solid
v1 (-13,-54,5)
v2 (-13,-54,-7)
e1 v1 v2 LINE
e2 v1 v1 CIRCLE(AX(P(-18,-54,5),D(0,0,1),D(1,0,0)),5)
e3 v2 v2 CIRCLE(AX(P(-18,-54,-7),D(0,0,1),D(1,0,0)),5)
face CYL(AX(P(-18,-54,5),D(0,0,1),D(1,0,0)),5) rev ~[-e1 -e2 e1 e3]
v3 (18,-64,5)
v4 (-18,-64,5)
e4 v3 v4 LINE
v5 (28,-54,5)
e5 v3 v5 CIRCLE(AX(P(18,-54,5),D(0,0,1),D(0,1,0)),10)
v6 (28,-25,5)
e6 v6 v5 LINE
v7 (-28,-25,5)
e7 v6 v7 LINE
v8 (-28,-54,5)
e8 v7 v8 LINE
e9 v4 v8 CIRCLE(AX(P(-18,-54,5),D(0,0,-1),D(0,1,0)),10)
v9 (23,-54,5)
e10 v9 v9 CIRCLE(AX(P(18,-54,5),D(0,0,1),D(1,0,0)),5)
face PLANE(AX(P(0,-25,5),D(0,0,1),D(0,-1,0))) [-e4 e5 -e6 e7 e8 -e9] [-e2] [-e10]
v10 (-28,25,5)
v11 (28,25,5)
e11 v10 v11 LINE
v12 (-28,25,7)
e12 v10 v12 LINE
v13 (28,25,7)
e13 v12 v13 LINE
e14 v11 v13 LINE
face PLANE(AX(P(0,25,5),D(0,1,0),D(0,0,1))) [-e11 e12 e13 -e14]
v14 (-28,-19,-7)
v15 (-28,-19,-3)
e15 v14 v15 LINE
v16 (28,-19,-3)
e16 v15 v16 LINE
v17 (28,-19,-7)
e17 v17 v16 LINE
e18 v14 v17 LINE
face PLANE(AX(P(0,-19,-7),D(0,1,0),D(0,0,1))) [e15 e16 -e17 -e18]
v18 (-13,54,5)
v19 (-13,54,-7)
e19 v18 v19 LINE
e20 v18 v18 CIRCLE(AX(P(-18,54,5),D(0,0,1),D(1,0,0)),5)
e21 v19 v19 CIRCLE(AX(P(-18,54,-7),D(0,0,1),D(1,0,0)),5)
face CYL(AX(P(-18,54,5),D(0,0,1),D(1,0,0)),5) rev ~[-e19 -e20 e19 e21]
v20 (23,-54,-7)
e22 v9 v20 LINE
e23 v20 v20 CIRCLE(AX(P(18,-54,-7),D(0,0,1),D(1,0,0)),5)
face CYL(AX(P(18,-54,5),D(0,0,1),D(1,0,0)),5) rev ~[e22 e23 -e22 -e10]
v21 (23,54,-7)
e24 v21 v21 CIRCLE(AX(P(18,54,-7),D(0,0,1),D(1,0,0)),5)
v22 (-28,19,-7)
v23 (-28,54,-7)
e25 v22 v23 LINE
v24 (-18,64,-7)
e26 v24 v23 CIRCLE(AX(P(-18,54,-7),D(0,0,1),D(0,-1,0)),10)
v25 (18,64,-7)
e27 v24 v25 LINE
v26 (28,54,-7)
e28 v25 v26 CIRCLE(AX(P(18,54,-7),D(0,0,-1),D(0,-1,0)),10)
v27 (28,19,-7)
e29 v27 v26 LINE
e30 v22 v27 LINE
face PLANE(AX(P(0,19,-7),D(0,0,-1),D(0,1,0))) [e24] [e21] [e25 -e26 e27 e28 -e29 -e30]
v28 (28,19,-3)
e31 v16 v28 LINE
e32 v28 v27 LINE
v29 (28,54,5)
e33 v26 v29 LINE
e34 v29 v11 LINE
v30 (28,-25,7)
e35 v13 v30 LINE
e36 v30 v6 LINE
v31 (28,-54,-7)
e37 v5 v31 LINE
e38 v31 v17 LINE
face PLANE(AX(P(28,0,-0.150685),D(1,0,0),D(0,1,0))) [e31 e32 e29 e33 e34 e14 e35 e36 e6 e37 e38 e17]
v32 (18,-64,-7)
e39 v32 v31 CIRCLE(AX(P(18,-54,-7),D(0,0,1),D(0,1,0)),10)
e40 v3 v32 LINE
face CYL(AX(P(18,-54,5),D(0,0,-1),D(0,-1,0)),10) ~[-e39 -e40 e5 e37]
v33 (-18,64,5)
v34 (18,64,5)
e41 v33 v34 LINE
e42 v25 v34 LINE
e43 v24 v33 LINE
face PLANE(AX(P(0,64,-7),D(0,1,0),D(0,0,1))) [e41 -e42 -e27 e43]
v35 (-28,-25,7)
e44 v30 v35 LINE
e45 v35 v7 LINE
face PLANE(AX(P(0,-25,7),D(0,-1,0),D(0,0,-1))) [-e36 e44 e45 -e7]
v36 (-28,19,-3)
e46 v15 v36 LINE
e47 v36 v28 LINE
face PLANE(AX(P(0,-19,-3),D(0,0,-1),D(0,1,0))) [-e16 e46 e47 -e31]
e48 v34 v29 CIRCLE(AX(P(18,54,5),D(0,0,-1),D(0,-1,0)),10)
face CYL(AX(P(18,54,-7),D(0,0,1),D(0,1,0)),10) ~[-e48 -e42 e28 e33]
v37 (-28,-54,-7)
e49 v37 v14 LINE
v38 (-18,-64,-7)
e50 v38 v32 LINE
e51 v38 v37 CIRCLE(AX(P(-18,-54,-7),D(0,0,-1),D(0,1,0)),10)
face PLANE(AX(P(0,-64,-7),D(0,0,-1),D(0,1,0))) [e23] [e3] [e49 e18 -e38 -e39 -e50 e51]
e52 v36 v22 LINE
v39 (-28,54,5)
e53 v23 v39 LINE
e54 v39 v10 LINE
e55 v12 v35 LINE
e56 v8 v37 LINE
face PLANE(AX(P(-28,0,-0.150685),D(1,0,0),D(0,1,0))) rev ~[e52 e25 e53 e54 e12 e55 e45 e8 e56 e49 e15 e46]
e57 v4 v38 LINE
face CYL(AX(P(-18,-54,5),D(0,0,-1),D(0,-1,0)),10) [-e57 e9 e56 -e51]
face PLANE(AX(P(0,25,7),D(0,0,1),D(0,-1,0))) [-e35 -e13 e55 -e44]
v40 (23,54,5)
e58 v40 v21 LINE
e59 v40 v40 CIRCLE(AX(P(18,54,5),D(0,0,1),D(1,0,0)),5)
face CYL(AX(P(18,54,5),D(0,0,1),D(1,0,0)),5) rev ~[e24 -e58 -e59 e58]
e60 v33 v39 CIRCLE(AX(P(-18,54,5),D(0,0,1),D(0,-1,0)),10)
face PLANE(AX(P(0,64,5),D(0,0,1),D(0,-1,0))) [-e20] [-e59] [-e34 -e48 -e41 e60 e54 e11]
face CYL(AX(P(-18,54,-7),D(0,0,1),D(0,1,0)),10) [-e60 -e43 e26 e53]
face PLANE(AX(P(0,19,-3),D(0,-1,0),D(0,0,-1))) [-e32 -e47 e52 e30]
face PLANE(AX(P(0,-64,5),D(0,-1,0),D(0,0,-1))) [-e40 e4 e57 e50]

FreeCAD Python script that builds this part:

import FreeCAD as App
import Part
import Sketcher


def edges_at(feature, points):
    """Names of the edges that pass closest to the given points."""
    edges = feature.Shape.Edges
    near = lambda p: min(range(len(edges)), key=lambda i: edges[i].distToShape(Part.Vertex(*p))[0])
    return sorted({f"Edge{near(p) + 1}" for p in points})


def add_polygon(sketch, points):
    """Adds a closed chain of lines whose ends are joined by coincident constraints."""
    first, n = sketch.GeometryCount, len(points)
    for a, b in zip(points, points[1:] + points[:1]):
        sketch.addGeometry(Part.LineSegment(App.Vector(*a, 0), App.Vector(*b, 0)), False)
    for i in range(n):
        sketch.addConstraint(Sketcher.Constraint("Coincident", first + i, 2, first + (i + 1) % n, 1))

doc = App.newDocument("Part")
body = doc.addObject("PartDesign::Body", "Body")

# Sketch on YZ plane
sketch1 = body.newObject("Sketcher::SketchObject", "Sketch")
sketch1.AttachmentSupport = (doc.getObject("YZ_Plane"), [""])
sketch1.MapMode = "FlatFace"
add_polygon(sketch1, [(-64, 5), (-64, -7), (-19, -7), (-19, -3), (19, -3), (19, -7), (64, -7), (64, 5), (25, 5), (25, 7), (-25, 7), (-25, 5)])  # lines 0-11
sketch1.addConstraint([
    Sketcher.Constraint("Vertical", 0),
    Sketcher.Constraint("Horizontal", 1),
    Sketcher.Constraint("Vertical", 2),
    Sketcher.Constraint("Horizontal", 3),
    Sketcher.Constraint("Vertical", 4),
    Sketcher.Constraint("Horizontal", 5),
    Sketcher.Constraint("Vertical", 6),
    Sketcher.Constraint("Horizontal", 7),
    Sketcher.Constraint("Vertical", 8),
    Sketcher.Constraint("Horizontal", 9),
    Sketcher.Constraint("Vertical", 10),
    Sketcher.Constraint("Horizontal", 11),
    Sketcher.Constraint("Symmetric", 1, 2, 4, 2, -2),
    Sketcher.Constraint("Symmetric", 7, 2, 10, 2, -2),
    Sketcher.Constraint("Equal", 1, 5),
    Sketcher.Constraint("DistanceX", 1, 1, 1, 2, 45.0),
    Sketcher.Constraint("DistanceX", 3, 1, 3, 2, 38.0),
    Sketcher.Constraint("DistanceX", 7, 2, 7, 1, 39.0),
    Sketcher.Constraint("DistanceY", 0, 2, 0, 1, 12.0),
    Sketcher.Constraint("DistanceY", 2, 1, 2, 2, 4.0),
    Sketcher.Constraint("DistanceY", 8, 1, 8, 2, 2.0),
    Sketcher.Constraint("DistanceY", 0, 2, -1, 1, 7.0),
])
pad1 = body.newObject("PartDesign::Pad", "Pad")
pad1.Profile = sketch1
pad1.Length = 56
pad1.Midplane = True
doc.recompute()

fillet = body.newObject("PartDesign::Fillet", "Fillet")
fillet.Base = (pad1, edges_at(pad1, [
    (28, -64, -1),
    (-28, -64, -1),
    (28, 64, -1),
    (-28, 64, -1),
]))
fillet.Radius = 10

# Sketch on XY plane
sketch2 = body.newObject("Sketcher::SketchObject", "Sketch001")
sketch2.AttachmentSupport = (doc.getObject("XY_Plane"), [""])
sketch2.MapMode = "FlatFace"
sketch2.AttachmentOffset = App.Placement(App.Vector(0, 0, 5), App.Rotation())
sketch2.addGeometry([
    Part.Circle(App.Vector(-18, -54, 0), App.Vector(0, 0, 1), 5),
    Part.Circle(App.Vector(-18, 54, 0), App.Vector(0, 0, 1), 5),
    Part.Circle(App.Vector(18, 54, 0), App.Vector(0, 0, 1), 5),
    Part.Circle(App.Vector(18, -54, 0), App.Vector(0, 0, 1), 5),
], False)
sketch2.addConstraint([
    Sketcher.Constraint("Equal", 0, 1),
    Sketcher.Constraint("Equal", 1, 2),
    Sketcher.Constraint("Equal", 2, 3),
    Sketcher.Constraint("Symmetric", 0, 3, 2, 3, -1, 1),
    Sketcher.Constraint("Symmetric", 1, 3, 3, 3, -1, 1),
    Sketcher.Constraint("Symmetric", 1, 3, 2, 3, -2),
    Sketcher.Constraint("Diameter", 0, 10.0),
    Sketcher.Constraint("DistanceX", 0, 3, -1, 1, 18.0),
    Sketcher.Constraint("DistanceY", 0, 3, -1, 1, 54.0),
])
pocket1 = body.newObject("PartDesign::Pocket", "Pocket")
pocket1.Profile = sketch2
pocket1.Type = "ThroughAll"

doc.recompute()
